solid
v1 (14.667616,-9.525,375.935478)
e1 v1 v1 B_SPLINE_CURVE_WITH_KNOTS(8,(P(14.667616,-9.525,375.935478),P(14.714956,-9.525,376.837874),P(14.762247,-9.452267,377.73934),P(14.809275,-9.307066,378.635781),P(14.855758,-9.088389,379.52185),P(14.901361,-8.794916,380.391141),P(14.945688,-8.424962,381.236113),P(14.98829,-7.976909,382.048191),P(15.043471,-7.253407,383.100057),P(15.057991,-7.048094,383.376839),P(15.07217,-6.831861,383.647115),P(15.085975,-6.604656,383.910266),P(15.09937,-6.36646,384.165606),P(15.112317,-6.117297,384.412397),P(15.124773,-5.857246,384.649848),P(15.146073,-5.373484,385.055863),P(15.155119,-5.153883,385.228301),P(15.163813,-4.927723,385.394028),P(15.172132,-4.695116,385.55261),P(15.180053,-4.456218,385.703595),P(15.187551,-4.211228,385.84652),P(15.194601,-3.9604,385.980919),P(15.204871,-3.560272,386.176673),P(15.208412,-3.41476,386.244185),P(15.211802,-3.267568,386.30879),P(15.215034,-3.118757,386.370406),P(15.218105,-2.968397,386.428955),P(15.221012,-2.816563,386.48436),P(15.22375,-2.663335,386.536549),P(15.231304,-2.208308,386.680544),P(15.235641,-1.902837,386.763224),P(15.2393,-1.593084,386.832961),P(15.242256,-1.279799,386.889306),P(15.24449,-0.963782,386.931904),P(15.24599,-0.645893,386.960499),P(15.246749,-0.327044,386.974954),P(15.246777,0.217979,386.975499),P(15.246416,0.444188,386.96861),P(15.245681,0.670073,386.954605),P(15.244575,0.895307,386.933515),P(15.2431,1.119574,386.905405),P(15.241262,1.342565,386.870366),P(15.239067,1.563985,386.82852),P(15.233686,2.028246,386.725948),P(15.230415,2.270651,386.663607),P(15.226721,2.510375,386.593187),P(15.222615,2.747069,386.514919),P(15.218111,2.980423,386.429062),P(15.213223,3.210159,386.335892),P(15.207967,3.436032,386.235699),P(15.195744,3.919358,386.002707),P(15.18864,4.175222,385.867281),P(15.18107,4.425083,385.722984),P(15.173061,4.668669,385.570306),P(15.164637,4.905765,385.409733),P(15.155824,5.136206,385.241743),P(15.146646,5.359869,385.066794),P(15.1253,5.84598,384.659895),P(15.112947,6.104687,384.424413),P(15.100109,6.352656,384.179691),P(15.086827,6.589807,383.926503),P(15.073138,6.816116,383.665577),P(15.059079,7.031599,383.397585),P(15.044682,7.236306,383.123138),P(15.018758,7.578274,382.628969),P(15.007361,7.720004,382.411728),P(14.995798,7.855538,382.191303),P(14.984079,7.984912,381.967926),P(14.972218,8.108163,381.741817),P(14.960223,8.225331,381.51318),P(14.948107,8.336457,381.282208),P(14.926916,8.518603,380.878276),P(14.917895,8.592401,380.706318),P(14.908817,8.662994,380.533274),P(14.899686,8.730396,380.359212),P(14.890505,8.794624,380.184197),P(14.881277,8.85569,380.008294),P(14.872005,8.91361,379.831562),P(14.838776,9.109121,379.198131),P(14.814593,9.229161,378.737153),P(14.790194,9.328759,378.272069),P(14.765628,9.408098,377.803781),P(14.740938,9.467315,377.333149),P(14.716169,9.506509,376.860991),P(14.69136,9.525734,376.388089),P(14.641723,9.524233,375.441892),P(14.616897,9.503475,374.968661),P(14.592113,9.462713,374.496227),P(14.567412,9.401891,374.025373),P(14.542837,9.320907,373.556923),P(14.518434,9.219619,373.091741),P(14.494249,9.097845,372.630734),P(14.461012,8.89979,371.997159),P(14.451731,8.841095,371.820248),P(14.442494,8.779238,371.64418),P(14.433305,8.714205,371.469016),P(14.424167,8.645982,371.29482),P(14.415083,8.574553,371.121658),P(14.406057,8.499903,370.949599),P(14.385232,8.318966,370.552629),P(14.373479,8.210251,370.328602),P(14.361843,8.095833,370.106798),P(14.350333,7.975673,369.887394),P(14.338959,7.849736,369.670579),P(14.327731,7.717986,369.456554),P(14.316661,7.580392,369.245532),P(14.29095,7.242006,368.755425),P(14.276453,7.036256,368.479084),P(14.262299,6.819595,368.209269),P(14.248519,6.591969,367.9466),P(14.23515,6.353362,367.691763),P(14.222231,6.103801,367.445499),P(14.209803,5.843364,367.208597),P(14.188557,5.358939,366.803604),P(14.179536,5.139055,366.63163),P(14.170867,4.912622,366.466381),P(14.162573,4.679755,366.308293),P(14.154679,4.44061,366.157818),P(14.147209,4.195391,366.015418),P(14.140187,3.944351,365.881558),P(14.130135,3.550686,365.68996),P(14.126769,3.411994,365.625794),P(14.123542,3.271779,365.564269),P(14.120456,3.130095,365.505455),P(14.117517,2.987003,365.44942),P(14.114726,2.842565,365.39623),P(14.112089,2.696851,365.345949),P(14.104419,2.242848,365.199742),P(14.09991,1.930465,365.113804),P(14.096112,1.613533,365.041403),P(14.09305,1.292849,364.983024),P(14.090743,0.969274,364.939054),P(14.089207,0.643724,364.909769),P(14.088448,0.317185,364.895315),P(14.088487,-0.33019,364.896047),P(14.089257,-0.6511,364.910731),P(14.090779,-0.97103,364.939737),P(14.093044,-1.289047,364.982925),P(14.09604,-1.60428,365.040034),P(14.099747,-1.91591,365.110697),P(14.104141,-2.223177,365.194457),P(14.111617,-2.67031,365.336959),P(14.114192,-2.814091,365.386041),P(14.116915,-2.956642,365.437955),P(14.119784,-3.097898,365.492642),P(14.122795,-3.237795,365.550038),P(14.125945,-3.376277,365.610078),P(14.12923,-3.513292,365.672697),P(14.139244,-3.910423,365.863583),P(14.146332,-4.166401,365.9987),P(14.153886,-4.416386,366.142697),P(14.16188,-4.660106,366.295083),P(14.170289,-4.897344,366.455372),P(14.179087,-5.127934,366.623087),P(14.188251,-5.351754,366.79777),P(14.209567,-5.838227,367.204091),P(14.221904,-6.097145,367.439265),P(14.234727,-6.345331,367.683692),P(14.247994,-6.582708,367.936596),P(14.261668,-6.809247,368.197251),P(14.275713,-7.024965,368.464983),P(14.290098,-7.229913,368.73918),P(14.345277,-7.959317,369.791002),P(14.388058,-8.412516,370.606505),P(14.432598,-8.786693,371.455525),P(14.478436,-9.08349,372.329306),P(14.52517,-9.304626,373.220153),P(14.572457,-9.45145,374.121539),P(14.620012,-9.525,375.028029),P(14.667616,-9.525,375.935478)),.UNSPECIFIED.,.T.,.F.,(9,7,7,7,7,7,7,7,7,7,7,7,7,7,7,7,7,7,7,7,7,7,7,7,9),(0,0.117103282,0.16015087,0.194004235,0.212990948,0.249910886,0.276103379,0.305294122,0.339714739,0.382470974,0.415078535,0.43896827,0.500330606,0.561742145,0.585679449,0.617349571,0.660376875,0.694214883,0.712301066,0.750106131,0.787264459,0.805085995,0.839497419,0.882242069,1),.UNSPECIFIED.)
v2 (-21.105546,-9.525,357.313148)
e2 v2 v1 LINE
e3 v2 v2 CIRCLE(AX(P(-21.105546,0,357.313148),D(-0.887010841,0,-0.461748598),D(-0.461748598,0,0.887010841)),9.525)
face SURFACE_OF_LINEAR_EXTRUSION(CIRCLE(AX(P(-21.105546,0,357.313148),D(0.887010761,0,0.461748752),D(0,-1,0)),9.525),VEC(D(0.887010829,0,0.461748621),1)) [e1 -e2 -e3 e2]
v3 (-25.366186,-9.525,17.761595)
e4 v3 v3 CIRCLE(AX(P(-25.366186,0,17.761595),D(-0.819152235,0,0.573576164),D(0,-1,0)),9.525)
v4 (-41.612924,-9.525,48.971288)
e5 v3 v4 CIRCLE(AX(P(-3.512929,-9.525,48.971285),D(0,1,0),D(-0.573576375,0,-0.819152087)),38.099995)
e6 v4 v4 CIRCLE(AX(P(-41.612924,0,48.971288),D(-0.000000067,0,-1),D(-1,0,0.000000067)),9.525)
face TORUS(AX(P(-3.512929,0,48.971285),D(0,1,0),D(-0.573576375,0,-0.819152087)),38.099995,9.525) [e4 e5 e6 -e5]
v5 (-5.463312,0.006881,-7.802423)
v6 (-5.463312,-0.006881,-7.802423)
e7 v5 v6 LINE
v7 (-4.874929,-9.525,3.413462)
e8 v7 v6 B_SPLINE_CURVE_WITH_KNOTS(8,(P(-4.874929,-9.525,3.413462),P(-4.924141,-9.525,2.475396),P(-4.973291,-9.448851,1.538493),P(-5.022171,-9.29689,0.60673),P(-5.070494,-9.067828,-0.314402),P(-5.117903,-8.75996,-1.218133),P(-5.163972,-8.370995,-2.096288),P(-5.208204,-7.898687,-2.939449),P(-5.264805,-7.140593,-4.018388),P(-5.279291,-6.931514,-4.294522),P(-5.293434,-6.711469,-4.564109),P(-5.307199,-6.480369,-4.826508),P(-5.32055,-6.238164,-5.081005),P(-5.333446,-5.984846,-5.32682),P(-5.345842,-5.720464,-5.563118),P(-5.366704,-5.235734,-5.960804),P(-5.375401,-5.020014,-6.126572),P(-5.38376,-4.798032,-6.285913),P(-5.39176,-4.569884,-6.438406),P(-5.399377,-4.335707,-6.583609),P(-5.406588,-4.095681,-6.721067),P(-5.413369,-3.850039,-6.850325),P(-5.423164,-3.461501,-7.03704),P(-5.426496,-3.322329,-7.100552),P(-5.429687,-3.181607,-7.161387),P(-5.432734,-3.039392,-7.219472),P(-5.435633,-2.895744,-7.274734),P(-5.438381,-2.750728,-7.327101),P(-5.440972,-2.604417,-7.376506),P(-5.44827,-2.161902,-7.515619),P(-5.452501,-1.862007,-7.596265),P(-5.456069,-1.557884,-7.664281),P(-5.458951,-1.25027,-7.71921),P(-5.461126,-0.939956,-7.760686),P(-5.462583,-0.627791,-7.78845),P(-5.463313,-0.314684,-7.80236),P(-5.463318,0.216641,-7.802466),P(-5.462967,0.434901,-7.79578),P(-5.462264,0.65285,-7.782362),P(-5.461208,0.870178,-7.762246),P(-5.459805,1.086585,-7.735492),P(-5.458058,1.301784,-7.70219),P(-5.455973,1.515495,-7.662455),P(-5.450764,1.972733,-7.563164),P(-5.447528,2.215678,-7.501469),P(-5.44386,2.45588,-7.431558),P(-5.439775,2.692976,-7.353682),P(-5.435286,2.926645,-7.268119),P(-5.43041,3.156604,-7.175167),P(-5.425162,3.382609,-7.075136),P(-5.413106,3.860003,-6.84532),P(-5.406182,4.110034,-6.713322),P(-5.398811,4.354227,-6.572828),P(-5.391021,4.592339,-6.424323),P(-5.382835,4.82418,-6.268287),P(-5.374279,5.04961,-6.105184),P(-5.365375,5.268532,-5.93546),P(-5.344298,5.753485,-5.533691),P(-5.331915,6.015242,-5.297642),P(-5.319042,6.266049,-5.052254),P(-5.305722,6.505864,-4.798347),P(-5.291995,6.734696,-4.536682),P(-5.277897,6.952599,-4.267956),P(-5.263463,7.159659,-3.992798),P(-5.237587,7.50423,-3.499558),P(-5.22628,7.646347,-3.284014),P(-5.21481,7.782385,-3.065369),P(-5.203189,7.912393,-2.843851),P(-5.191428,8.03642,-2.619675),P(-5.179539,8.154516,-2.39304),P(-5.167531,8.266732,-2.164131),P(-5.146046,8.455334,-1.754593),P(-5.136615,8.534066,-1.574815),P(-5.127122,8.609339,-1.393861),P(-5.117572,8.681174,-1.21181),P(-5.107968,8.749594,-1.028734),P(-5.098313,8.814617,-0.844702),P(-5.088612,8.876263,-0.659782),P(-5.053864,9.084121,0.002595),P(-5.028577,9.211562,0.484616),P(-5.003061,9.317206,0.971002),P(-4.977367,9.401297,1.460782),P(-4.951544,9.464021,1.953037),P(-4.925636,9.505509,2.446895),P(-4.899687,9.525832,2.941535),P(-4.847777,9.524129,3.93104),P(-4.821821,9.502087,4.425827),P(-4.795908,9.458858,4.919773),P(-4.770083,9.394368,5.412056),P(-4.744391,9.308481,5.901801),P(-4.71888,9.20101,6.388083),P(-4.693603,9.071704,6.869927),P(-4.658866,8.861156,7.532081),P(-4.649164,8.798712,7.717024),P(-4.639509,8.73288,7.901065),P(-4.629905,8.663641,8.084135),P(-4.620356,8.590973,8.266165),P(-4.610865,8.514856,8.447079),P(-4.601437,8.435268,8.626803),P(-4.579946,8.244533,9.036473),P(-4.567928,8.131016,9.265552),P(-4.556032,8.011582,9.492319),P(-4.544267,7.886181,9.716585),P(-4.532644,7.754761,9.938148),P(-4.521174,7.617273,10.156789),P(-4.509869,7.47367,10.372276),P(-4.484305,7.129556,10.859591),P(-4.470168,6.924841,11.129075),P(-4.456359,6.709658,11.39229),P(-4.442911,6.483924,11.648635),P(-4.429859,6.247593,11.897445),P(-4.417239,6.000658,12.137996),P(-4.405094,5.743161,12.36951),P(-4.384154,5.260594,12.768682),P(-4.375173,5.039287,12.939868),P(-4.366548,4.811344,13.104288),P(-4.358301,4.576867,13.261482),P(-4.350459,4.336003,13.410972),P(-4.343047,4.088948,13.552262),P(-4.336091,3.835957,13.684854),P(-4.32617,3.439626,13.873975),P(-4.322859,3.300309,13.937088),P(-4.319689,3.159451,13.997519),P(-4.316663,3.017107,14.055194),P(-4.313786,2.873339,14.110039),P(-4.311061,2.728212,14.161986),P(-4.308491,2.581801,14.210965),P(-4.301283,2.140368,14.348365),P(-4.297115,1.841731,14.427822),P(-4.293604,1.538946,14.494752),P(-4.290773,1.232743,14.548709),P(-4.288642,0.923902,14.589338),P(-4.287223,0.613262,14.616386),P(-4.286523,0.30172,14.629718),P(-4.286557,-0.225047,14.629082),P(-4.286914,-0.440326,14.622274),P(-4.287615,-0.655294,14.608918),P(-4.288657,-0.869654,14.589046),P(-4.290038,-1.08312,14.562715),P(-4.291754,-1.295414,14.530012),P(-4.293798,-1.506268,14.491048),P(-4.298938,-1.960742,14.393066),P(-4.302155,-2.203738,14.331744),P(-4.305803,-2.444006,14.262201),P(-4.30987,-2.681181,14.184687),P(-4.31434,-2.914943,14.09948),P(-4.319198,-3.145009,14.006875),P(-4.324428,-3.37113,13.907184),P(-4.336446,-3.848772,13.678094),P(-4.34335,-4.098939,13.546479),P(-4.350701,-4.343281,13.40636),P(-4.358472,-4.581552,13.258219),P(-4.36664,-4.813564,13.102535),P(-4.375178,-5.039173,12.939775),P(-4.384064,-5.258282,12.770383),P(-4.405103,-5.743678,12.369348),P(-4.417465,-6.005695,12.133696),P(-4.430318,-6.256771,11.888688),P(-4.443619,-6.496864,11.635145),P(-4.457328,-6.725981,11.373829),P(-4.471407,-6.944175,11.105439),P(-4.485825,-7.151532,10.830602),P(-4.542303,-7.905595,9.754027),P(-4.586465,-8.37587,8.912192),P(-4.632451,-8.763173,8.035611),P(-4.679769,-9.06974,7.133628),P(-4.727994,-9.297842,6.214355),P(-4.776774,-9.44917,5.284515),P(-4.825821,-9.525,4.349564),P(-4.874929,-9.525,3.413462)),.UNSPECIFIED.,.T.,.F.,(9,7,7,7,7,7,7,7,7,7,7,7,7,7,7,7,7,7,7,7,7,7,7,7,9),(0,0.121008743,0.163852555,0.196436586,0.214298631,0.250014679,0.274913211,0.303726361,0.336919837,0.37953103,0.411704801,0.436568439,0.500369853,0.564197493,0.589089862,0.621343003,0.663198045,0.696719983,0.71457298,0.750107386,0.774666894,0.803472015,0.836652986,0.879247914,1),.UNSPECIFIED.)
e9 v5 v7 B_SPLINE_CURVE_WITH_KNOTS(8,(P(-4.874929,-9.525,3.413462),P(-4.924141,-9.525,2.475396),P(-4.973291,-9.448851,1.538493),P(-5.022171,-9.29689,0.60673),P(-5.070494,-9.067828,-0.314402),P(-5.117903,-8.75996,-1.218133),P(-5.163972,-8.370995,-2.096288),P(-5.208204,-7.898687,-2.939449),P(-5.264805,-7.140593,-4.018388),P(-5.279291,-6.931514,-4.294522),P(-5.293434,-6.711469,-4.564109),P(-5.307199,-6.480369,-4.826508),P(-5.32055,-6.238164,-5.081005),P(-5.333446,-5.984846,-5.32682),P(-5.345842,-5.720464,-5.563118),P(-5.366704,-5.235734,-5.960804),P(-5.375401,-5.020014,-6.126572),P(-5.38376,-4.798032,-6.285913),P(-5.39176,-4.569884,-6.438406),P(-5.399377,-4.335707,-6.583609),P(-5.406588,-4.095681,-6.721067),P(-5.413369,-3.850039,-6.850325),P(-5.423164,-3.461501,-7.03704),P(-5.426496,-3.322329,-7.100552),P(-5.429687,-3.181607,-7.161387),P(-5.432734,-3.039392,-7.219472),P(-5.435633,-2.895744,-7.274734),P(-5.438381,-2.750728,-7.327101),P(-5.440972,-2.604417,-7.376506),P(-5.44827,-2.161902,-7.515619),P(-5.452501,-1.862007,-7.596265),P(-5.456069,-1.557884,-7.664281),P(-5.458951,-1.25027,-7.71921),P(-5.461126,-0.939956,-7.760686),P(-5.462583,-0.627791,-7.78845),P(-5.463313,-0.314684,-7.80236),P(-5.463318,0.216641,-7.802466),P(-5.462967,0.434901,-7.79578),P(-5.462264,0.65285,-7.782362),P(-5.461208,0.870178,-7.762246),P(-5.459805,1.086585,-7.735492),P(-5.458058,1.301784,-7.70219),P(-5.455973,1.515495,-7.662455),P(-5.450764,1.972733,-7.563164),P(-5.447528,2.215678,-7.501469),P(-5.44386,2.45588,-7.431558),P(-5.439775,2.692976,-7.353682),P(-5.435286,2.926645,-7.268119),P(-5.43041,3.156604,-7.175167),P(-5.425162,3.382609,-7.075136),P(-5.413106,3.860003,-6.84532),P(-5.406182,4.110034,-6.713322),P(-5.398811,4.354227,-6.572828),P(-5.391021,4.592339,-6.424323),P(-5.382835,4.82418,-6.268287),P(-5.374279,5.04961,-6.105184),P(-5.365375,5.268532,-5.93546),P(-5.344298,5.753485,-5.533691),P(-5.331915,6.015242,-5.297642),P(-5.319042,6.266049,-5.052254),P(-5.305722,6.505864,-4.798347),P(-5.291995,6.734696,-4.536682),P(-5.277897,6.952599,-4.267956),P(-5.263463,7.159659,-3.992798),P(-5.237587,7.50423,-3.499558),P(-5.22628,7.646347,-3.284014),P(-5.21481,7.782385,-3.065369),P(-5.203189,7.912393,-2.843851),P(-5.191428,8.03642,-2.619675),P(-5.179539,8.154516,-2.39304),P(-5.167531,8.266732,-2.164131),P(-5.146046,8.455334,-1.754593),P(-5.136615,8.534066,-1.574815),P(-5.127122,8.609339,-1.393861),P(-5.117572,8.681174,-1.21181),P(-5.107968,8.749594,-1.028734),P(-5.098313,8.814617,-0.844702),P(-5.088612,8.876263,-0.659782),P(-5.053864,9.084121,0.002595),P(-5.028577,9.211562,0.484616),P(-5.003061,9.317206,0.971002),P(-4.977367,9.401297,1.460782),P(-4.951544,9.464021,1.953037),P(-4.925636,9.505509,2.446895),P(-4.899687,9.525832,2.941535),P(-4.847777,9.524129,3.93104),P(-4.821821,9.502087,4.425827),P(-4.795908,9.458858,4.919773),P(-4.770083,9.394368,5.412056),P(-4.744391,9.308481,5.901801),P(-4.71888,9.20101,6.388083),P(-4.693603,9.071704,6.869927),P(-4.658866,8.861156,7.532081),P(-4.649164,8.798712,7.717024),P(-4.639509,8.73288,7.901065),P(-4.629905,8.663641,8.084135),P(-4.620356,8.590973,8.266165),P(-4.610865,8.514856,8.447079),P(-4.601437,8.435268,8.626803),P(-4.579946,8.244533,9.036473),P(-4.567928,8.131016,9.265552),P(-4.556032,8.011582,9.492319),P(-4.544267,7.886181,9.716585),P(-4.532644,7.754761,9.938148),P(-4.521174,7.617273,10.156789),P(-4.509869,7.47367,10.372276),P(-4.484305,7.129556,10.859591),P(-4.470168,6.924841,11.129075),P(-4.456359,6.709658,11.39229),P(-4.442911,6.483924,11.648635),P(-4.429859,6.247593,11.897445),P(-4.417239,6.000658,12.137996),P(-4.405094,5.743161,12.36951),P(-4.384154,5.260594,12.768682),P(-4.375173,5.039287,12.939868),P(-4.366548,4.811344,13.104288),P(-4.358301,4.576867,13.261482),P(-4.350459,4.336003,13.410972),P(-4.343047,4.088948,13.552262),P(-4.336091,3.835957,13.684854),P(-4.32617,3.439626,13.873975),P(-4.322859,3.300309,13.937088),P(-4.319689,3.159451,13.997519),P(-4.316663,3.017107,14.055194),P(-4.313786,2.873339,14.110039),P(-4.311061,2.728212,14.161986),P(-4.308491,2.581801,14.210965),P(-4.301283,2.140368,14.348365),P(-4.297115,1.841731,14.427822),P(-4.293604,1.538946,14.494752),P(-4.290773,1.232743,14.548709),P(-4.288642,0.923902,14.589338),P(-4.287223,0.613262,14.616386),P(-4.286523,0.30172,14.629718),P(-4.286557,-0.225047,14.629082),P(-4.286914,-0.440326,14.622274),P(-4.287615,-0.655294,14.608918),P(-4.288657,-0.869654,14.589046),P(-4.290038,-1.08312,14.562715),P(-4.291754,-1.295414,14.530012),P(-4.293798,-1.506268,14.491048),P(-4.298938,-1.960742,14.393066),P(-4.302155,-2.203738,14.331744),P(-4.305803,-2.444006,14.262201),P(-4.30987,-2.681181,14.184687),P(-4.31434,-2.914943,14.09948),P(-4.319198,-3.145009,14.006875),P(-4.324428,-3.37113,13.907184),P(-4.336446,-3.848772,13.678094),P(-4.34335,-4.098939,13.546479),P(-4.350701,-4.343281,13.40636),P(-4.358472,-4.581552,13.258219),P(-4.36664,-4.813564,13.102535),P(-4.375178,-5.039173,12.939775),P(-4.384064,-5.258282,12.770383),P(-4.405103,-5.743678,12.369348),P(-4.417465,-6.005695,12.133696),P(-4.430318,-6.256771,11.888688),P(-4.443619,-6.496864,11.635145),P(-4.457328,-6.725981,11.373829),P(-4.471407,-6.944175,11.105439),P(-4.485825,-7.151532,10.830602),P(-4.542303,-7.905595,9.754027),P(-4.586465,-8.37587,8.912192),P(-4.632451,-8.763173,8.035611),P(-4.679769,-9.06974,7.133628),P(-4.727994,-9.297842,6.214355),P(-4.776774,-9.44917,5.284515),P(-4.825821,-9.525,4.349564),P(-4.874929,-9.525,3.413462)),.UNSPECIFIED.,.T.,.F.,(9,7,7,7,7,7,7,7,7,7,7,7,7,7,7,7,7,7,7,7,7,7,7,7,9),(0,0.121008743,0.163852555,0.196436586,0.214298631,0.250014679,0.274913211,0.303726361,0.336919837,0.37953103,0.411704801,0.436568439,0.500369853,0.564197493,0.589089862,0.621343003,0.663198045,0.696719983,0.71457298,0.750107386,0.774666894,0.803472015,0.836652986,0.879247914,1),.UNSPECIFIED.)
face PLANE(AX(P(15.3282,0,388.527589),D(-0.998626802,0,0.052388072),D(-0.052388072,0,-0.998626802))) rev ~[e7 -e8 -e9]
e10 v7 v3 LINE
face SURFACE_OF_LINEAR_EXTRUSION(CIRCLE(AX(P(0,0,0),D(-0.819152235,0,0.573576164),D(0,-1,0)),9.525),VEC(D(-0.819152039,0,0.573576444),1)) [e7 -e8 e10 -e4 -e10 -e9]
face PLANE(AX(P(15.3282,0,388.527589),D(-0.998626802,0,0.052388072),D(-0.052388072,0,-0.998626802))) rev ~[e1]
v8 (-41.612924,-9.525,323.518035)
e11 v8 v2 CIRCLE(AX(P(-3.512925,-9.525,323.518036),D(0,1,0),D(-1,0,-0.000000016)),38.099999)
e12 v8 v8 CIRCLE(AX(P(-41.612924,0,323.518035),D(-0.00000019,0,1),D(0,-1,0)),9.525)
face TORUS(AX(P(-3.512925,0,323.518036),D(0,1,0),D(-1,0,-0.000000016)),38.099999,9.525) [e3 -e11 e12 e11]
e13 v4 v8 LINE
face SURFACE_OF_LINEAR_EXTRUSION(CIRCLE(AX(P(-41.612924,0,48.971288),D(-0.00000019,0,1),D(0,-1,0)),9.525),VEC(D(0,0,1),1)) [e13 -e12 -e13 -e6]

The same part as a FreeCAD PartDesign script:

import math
import FreeCAD as App
import Part
import Sketcher
from FreeCAD import Vector
Q = App.Units.Quantity


def add_polygon(sketch, points):
    """Adds a closed chain of lines whose ends are joined by coincident constraints."""
    first, n = sketch.GeometryCount, len(points)
    for a, b in zip(points, points[1:] + points[:1]):
        sketch.addGeometry(Part.LineSegment(App.Vector(*a, 0), App.Vector(*b, 0)), False)
    for i in range(n):
        sketch.addConstraint(Sketcher.Constraint("Coincident", first + i, 2, first + (i + 1) % n, 1))

doc = App.newDocument("Part")
body = doc.addObject("PartDesign::Body", "Body")

# Sketch on an angled plane
sketch1 = body.newObject("Sketcher::SketchObject", "Sketch")
sketch1.Placement = App.Placement(Vector(0, 0, 0), App.Rotation(Vector(0, -1, 0), Vector(0.573576164, 0, 0.819152235), Vector(-0.819152235, 0, 0.573576164), "ZXY"))
sketch1.addGeometry(Part.Circle(Vector(0, 0, 0), Vector(0, 0, 1), 10), False)
sketch1.addConstraint(Sketcher.Constraint("Coincident", 0, 3, -1, 1))
sketch1.addConstraint(Sketcher.Constraint("Diameter", 0, Q("0.75 in")))

# Sketch on XZ plane
sketch2 = body.newObject("Sketcher::SketchObject", "Sketch001")
sketch2.AttachmentSupport = (doc.getObject("XZ_Plane"), [""])
sketch2.MapMode = "FlatFace"
sketch2.addGeometry(Part.LineSegment(Vector(0, 0, 0), Vector(-25, 18, 0)), False)
sketch2.addGeometry(Part.ArcOfCircle(Part.Circle(Vector(-4, 49, 0), Vector(0, 0, 1), 38), math.radians(180), math.radians(235)), False)
sketch2.addGeometry(Part.LineSegment(Vector(-42, 49, 0), Vector(-42, 324, 0)), False)
sketch2.addGeometry(Part.ArcOfCircle(Part.Circle(Vector(-4, 324, 0), Vector(0, 0, 1), 38), math.radians(117), math.radians(180)), False)
sketch2.addGeometry(Part.LineSegment(Vector(-21, 357, 0), Vector(20, 379, 0)), False)
sketch2.addConstraint(Sketcher.Constraint("Tangent", 0, 2, 1, 2))
sketch2.addConstraint(Sketcher.Constraint("Tangent", 1, 1, 2, 1))
sketch2.addConstraint(Sketcher.Constraint("Tangent", 2, 2, 3, 2))
sketch2.addConstraint(Sketcher.Constraint("Tangent", 3, 1, 4, 1))
sketch2.addConstraint(Sketcher.Constraint("Vertical", 2))
sketch2.addConstraint(Sketcher.Constraint("Coincident", 0, 1, -1, 1))
sketch2.addConstraint(Sketcher.Constraint("Radius", 1, Q("1.4999998 in")))
sketch2.addConstraint(Sketcher.Constraint("Radius", 3, Q("1.5 in")))
sketch2.addConstraint(Sketcher.Constraint("Angle", 0, Q("144.999999 deg")))
sketch2.addConstraint(Sketcher.Constraint("Angle", 4, Q("27.500001 deg")))
sketch2.addConstraint(Sketcher.Constraint("DistanceY", 2, 1, 2, 2, Q("274.546747 mm")))
sketch2.addConstraint(Sketcher.Constraint("DistanceX", 1, 3, -1, 1, Q("3.512929 mm")))
sketch2.addConstraint(Sketcher.Constraint("DistanceX", 3, 1, 4, 2, Q("41.450329 mm")))
doc.recompute()

additivepipe = body.newObject("PartDesign::AdditivePipe", "AdditivePipe")
additivepipe.Profile = sketch1
additivepipe.Spine = (sketch2, ["Edge1", "Edge2", "Edge3", "Edge4", "Edge5"])

# Sketch on XZ plane
sketch3 = body.newObject("Sketcher::SketchObject", "Sketch002")
sketch3.AttachmentSupport = (doc.getObject("XZ_Plane"), [""])
sketch3.MapMode = "FlatFace"
add_polygon(sketch3, [(15, 389), (-5, -8), (14, -8), (34, 389)])  # lines 0-3
sketch3.addConstraint(Sketcher.Constraint("Horizontal", 1))
sketch3.addConstraint(Sketcher.Constraint("Horizontal", 3))
sketch3.addConstraint(Sketcher.Constraint("Parallel", 0, 2))
sketch3.addConstraint(Sketcher.Constraint("DistanceX", 1, 1, 1, 2, Q("0.75 in")))
sketch3.addConstraint(Sketcher.Constraint("Distance", 0, Q("15.625 in")))
sketch3.addConstraint(Sketcher.Constraint("DistanceX", -1, 1, 2, 2, Q("34.3782 mm")))
sketch3.addConstraint(Sketcher.Constraint("DistanceY", -1, 1, 2, 2, Q("388.527589 mm")))
sketch3.addConstraint(Sketcher.Constraint("DistanceY", 1, 2, 2, 2, Q("396.330012 mm")))
pocket1 = body.newObject("PartDesign::Pocket", "Pocket")
pocket1.Profile = sketch3
pocket1.Length = Q("1 in")
pocket1.Midplane = True

doc.recompute()
